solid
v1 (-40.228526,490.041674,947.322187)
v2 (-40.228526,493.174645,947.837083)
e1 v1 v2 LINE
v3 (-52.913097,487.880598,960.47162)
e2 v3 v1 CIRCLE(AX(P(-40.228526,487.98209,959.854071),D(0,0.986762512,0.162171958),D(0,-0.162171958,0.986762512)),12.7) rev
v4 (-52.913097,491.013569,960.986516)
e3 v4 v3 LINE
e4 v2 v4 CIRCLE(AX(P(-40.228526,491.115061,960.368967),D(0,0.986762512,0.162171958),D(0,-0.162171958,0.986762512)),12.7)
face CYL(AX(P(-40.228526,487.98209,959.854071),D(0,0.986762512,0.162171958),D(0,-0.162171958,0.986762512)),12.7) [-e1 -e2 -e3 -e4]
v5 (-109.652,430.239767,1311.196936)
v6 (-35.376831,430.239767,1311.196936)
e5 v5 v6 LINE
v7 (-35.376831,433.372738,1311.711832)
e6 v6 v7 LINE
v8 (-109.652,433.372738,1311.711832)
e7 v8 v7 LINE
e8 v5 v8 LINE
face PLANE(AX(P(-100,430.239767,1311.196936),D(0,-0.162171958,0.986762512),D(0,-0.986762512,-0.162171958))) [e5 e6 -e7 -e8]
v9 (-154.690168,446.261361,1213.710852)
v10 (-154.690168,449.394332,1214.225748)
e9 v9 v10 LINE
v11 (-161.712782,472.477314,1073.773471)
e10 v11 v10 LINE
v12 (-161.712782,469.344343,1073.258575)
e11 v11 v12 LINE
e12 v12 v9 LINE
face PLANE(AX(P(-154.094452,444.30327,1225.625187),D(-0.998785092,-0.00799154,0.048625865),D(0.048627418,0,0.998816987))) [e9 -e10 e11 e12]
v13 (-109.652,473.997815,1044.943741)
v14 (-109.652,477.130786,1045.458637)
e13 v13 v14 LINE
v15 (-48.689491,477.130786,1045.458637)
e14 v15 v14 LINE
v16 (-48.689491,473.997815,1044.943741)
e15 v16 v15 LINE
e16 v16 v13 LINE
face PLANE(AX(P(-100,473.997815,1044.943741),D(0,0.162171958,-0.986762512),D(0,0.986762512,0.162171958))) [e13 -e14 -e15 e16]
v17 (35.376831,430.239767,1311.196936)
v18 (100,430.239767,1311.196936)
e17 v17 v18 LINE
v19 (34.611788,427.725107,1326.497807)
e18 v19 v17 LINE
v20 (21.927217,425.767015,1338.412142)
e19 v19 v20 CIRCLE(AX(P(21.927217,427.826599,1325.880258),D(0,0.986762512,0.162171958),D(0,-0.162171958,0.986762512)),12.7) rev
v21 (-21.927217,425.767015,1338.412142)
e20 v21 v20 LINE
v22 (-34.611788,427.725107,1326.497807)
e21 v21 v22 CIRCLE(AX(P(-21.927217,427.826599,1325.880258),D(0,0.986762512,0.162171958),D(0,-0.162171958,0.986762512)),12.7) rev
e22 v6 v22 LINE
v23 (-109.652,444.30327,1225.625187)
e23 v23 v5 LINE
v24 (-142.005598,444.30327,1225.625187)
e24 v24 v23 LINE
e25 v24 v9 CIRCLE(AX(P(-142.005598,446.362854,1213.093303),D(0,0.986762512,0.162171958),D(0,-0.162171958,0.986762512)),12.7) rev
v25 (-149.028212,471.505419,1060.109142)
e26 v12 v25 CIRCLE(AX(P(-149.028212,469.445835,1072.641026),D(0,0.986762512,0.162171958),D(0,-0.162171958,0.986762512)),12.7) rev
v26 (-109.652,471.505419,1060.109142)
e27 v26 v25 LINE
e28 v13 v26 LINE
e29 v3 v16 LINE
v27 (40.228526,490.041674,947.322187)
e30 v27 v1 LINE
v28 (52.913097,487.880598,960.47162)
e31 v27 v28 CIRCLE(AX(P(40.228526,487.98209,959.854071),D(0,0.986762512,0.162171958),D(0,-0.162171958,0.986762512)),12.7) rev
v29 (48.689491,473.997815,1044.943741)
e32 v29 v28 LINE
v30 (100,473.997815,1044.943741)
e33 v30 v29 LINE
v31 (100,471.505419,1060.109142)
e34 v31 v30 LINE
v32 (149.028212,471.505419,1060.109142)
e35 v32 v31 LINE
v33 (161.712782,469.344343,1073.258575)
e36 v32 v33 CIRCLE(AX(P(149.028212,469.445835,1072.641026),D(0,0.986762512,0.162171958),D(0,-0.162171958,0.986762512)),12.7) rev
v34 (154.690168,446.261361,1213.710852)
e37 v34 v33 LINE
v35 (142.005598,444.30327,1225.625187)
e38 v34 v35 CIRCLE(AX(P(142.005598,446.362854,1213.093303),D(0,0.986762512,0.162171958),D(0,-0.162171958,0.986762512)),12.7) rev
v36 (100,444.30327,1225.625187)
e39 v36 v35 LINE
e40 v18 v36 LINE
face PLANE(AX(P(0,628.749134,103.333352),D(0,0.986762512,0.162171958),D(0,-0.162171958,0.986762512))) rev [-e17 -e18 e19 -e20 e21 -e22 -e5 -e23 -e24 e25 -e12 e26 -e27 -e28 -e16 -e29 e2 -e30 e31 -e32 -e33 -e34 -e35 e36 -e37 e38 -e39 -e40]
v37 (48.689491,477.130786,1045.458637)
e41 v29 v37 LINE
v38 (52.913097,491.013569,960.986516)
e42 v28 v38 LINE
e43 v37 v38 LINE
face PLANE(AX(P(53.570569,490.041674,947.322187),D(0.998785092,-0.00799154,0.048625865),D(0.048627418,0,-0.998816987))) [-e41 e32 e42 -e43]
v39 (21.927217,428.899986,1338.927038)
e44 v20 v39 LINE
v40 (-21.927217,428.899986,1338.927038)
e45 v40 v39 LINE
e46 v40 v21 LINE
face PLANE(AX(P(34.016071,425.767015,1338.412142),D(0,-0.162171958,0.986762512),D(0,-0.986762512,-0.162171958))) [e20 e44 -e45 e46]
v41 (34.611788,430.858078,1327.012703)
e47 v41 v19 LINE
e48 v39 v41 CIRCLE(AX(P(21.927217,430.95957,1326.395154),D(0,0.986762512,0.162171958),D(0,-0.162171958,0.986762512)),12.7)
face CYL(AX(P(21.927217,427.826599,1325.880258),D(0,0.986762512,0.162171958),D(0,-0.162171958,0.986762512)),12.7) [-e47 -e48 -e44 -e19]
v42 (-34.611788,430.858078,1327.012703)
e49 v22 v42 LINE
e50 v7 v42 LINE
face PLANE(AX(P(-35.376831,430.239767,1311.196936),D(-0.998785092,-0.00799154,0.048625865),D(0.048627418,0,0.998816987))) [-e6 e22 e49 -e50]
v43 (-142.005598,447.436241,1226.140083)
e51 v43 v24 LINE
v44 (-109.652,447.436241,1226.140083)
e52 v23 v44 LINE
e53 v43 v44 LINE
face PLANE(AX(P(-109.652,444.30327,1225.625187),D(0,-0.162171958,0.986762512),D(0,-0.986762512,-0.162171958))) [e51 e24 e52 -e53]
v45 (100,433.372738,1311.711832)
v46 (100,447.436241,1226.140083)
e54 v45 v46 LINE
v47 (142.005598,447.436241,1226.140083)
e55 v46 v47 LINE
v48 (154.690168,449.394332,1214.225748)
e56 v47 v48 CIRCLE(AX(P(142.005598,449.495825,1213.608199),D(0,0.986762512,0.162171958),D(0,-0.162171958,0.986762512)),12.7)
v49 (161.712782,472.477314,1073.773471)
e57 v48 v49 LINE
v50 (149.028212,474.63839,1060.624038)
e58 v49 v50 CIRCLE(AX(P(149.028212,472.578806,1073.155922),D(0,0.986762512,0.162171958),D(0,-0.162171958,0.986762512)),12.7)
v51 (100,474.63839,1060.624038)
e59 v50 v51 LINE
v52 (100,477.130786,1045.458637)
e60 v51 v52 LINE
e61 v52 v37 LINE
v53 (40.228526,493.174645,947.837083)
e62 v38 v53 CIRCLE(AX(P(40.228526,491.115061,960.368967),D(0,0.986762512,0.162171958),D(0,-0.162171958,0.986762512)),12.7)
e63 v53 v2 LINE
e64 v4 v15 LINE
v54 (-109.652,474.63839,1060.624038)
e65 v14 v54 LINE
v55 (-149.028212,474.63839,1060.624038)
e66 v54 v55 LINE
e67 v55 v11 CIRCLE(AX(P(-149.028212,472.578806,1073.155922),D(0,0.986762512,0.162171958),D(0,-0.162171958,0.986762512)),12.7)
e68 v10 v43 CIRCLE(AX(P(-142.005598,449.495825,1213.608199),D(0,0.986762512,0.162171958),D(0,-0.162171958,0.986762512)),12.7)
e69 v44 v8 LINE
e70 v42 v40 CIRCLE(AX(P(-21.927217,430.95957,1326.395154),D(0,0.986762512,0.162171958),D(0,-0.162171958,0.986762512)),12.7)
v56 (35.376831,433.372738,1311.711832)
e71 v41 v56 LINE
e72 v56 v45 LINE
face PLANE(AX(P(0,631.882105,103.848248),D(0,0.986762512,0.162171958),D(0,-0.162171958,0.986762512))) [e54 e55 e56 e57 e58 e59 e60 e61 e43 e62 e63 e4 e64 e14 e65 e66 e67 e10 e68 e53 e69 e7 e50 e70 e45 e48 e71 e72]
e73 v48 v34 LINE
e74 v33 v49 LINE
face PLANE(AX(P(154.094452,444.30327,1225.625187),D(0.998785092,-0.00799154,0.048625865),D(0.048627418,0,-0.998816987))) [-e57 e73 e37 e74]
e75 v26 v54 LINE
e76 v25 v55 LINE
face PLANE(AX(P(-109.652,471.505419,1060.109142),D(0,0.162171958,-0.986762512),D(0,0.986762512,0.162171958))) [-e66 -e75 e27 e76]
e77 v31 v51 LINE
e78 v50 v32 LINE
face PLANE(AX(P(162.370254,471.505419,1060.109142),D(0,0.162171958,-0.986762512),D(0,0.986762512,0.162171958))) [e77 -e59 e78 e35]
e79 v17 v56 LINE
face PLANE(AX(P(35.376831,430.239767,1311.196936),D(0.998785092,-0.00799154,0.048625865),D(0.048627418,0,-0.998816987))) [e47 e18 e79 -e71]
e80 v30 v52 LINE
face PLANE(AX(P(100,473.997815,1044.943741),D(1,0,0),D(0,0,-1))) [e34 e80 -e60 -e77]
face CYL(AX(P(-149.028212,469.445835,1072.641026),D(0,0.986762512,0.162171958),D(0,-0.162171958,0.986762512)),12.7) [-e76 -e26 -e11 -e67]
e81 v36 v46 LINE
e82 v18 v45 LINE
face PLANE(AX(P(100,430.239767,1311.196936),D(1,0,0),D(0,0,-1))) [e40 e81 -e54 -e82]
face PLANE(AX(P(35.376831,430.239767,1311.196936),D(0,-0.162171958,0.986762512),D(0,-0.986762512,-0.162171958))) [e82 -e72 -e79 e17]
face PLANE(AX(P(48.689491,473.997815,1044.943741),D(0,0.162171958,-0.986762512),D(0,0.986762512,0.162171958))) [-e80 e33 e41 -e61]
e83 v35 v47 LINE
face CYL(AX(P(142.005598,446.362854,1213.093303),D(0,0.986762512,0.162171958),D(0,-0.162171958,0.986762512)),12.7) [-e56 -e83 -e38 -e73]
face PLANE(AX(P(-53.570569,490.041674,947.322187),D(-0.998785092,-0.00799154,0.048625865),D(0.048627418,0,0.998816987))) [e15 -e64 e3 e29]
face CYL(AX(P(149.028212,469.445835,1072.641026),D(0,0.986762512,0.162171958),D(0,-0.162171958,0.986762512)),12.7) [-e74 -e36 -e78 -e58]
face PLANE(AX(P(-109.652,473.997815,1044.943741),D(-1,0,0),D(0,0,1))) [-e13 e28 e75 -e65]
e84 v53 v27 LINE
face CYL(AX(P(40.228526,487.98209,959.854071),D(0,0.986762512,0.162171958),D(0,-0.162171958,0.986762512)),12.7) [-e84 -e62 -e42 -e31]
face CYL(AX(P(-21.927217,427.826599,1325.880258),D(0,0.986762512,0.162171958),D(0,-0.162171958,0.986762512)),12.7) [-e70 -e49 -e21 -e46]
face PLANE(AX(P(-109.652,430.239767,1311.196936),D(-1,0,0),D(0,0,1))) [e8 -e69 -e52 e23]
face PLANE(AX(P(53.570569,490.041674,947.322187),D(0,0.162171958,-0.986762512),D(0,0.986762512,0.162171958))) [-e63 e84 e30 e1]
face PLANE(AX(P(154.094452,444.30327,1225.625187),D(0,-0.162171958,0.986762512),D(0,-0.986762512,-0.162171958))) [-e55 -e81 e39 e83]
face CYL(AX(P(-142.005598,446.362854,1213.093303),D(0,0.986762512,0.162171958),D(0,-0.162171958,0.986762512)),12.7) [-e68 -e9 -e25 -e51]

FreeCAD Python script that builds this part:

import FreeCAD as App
import Part
import Sketcher
from FreeCAD import Vector
Q = App.Units.Quantity


def edges_at(feature, points):
    """Names of the edges that pass closest to the given points."""
    edges = feature.Shape.Edges
    near = lambda p: min(range(len(edges)), key=lambda i: edges[i].distToShape(Part.Vertex(*p))[0])
    return sorted({f"Edge{near(p) + 1}" for p in points})

doc = App.newDocument("Part")
params = doc.addObject("Spreadsheet::Sheet", "Params")
for row, (alias, value) in enumerate([
    ("pad1_length", "0.125 in"),
    ("fillet_radius", "0.5 in"),
], start=1):
    params.set(f"A{row}", alias)
    params.set(f"B{row}", "=" + value)
    params.setAlias(f"B{row}", alias)

body = doc.addObject("PartDesign::Body", "Body")

# Sketch on an angled plane
sketch1 = doc.addObject("Sketcher::SketchObject", "Sketch")
body.addObject(sketch1)
sketch1.Placement = App.Placement(Vector(0, 631.882105, 103.848248), App.Rotation(Vector(1, 0, 0), Vector(0, 0.162171958, -0.986762512), Vector(0, 0.986762512, 0.162171958), "ZXY"))
sketch1.addGeometry([
    Part.LineSegment(Vector(100, -1224.067156, 0), Vector(100, -1137.347457, 0)),  # 0
    Part.LineSegment(Vector(100, -1137.347457, 0), Vector(154.094452, -1137.347457, 0)),  # 1
    Part.LineSegment(Vector(154.094452, -1137.347457, 0), Vector(162.370254, -969.611003, 0)),  # 2
    Part.LineSegment(Vector(162.370254, -969.611003, 0), Vector(100, -969.611003, 0)),  # 3
    Part.LineSegment(Vector(100, -969.611003, 0), Vector(100, -954.242156, 0)),  # 4
    Part.LineSegment(Vector(100, -954.242156, 0), Vector(48.689491, -954.242156, 0)),  # 5
    Part.LineSegment(Vector(48.689491, -954.242156, 0), Vector(53.570569, -855.311003, 0)),  # 6
    Part.LineSegment(Vector(53.570569, -855.311003, 0), Vector(-53.570569, -855.311003, 0)),  # 7
    Part.LineSegment(Vector(-53.570569, -855.311003, 0), Vector(-48.689491, -954.242156, 0)),  # 8
    Part.LineSegment(Vector(-48.689491, -954.242156, 0), Vector(-109.652, -954.242156, 0)),  # 9
    Part.LineSegment(Vector(-109.652, -954.242156, 0), Vector(-109.652, -969.611003, 0)),  # 10
    Part.LineSegment(Vector(-109.652, -969.611003, 0), Vector(-162.370254, -969.611003, 0)),  # 11
    Part.LineSegment(Vector(-162.370254, -969.611003, 0), Vector(-154.094452, -1137.347457, 0)),  # 12
    Part.LineSegment(Vector(-154.094452, -1137.347457, 0), Vector(-109.652, -1137.347457, 0)),  # 13
    Part.LineSegment(Vector(-109.652, -1137.347457, 0), Vector(-109.652, -1224.067156, 0)),  # 14
    Part.LineSegment(Vector(-109.652, -1224.067156, 0), Vector(-35.376831, -1224.067156, 0)),  # 15
    Part.LineSegment(Vector(-35.376831, -1224.067156, 0), Vector(-34.016071, -1251.647456, 0)),  # 16
    Part.LineSegment(Vector(-34.016071, -1251.647456, 0), Vector(34.016071, -1251.647456, 0)),  # 17
    Part.LineSegment(Vector(34.016071, -1251.647456, 0), Vector(35.376831, -1224.067156, 0)),  # 18
    Part.LineSegment(Vector(35.376831, -1224.067156, 0), Vector(100, -1224.067156, 0)),  # 19
], False)
sketch1.addConstraint([
    Sketcher.Constraint("Coincident", 0, 2, 1, 1),
    Sketcher.Constraint("Coincident", 1, 2, 2, 1),
    Sketcher.Constraint("Coincident", 2, 2, 3, 1),
    Sketcher.Constraint("Coincident", 3, 2, 4, 1),
    Sketcher.Constraint("Coincident", 4, 2, 5, 1),
    Sketcher.Constraint("Coincident", 5, 2, 6, 1),
    Sketcher.Constraint("Coincident", 6, 2, 7, 1),
    Sketcher.Constraint("Coincident", 7, 2, 8, 1),
    Sketcher.Constraint("Coincident", 8, 2, 9, 1),
    Sketcher.Constraint("Coincident", 9, 2, 10, 1),
    Sketcher.Constraint("Coincident", 10, 2, 11, 1),
    Sketcher.Constraint("Coincident", 11, 2, 12, 1),
    Sketcher.Constraint("Coincident", 12, 2, 13, 1),
    Sketcher.Constraint("Coincident", 13, 2, 14, 1),
    Sketcher.Constraint("Coincident", 14, 2, 15, 1),
    Sketcher.Constraint("Coincident", 15, 2, 16, 1),
    Sketcher.Constraint("Coincident", 16, 2, 17, 1),
    Sketcher.Constraint("Coincident", 17, 2, 18, 1),
    Sketcher.Constraint("Coincident", 18, 2, 19, 1),
    Sketcher.Constraint("Coincident", 19, 2, 0, 1),
    Sketcher.Constraint("Vertical", 0),
    Sketcher.Constraint("Horizontal", 1),
    Sketcher.Constraint("Horizontal", 3),
    Sketcher.Constraint("Vertical", 4),
    Sketcher.Constraint("Horizontal", 5),
    Sketcher.Constraint("Horizontal", 7),
    Sketcher.Constraint("Horizontal", 9),
    Sketcher.Constraint("Vertical", 10),
    Sketcher.Constraint("Horizontal", 11),
    Sketcher.Constraint("Horizontal", 13),
    Sketcher.Constraint("Vertical", 14),
    Sketcher.Constraint("Horizontal", 15),
    Sketcher.Constraint("Horizontal", 17),
    Sketcher.Constraint("Horizontal", 19),
    Sketcher.Constraint("DistanceY", 3, 2, 6, 2, Q("4.5 in")),
    Sketcher.Constraint("DistanceY", 10, 2, 7, 2, Q("4.5 in")),
    Sketcher.Constraint("DistanceY", 16, 2, 13, 2, Q("4.5 in")),
    Sketcher.Constraint("DistanceY", 16, 2, 0, 2, Q("4.5 in")),
    Sketcher.Constraint("DistanceY", 0, 1, 0, 2, Q("86.719699 mm")),
    Sketcher.Constraint("DistanceY", 14, 2, 14, 1, Q("86.719699 mm")),
    Sketcher.Constraint("DistanceX", 1, 1, 1, 2, Q("54.094452 mm")),
    Sketcher.Constraint("DistanceX", 5, 2, 5, 1, Q("51.310509 mm")),
    Sketcher.Constraint("DistanceX", 9, 2, 9, 1, Q("60.962509 mm")),
    Sketcher.Constraint("DistanceX", 13, 1, 13, 2, Q("44.442452 mm")),
    Sketcher.Constraint("DistanceX", 15, 1, 15, 2, Q("74.275169 mm")),
    Sketcher.Constraint("DistanceX", 19, 1, 19, 2, Q("64.623169 mm")),
    Sketcher.Constraint("DistanceX", -1, 1, 0, 2, Q("100 mm")),
    Sketcher.Constraint("DistanceX", -1, 1, 3, 2, Q("100 mm")),
    Sketcher.Constraint("DistanceX", 9, 2, -1, 1, Q("109.652 mm")),
    Sketcher.Constraint("DistanceX", 13, 2, -1, 1, Q("109.652 mm")),
    Sketcher.Constraint("DistanceY", 0, 2, 4, 2, Q("183.1053 mm")),
    Sketcher.Constraint("DistanceY", 12, 2, 9, 2, Q("183.1053 mm")),
    Sketcher.Constraint("Distance", 6, Q("99.051492 mm")),
    Sketcher.Constraint("Distance", 8, Q("99.051492 mm")),
    Sketcher.Constraint("Distance", 16, Q("27.613849 mm")),
    Sketcher.Constraint("Distance", 18, Q("27.613849 mm")),
    Sketcher.Constraint("DistanceX", 3, 2, 3, 1, Q("62.370254 mm")),
    Sketcher.Constraint("DistanceX", 7, 2, 7, 1, Q("107.141138 mm")),
    Sketcher.Constraint("DistanceX", 11, 2, 11, 1, Q("52.718254 mm")),
    Sketcher.Constraint("DistanceY", 0, 2, -1, 1, Q("1137.347457 mm")),
])
pad1 = doc.addObject("PartDesign::Pad", "Pad")
body.addObject(pad1)
pad1.Profile = sketch1
pad1.setExpression("Length", "Params.pad1_length")
pad1.Reversed = True
doc.recompute()

fillet = doc.addObject("PartDesign::Fillet", "Fillet")
body.addObject(fillet)
fillet.Base = (pad1, edges_at(pad1, [
    (34.016, 427.334, 1338.67),
    (-34.016, 427.334, 1338.67),
    (-154.094, 445.87, 1225.883),
    (-162.37, 473.072, 1060.367),
    (-53.571, 491.608, 947.58),
    (53.571, 491.608, 947.58),
    (162.37, 473.072, 1060.367),
    (154.094, 445.87, 1225.883),
]))
fillet.setExpression("Radius", "Params.fillet_radius")

doc.recompute()
